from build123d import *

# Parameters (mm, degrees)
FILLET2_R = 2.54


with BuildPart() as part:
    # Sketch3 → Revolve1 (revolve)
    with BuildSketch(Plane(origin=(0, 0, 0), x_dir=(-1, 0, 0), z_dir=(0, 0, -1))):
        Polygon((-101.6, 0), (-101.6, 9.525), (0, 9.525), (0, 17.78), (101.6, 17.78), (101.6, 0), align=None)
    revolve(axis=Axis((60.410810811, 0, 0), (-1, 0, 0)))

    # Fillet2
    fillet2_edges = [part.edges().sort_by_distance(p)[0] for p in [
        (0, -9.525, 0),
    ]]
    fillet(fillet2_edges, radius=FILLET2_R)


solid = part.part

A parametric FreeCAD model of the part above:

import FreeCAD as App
import Part
import Sketcher

V = App.Vector
Q = App.Units.Quantity


def edges_at(feature, points):
    """Names of the edges that pass closest to the given points."""
    edges = feature.Shape.Edges
    near = lambda p: min(range(len(edges)), key=lambda i: edges[i].distToShape(Part.Vertex(*p))[0])
    return sorted({f"Edge{near(p) + 1}" for p in points})


def add_polygon(sketch, points):
    """Adds a closed chain of lines whose ends are joined by coincident constraints."""
    first, n = sketch.GeometryCount, len(points)
    for a, b in zip(points, points[1:] + points[:1]):
        sketch.addGeometry(Part.LineSegment(App.Vector(*a, 0), App.Vector(*b, 0)), False)
    for i in range(n):
        sketch.addConstraint(Sketcher.Constraint("Coincident", first + i, 2, first + (i + 1) % n, 1))

doc = App.newDocument("Part")
params = doc.addObject("Spreadsheet::Sheet", "Params")
for row, (alias, value) in enumerate([
    ("sketch1_width", "8 in"),
    ("sketch1_height", "0.7 in"),
    ("sketch1_height2", "0.375 in"),
    ("revolution_angle", "360 deg"),
    ("fillet_radius", "0.1 in"),
], start=1):
    params.set(f"A{row}", alias)
    params.set(f"B{row}", "=" + value)
    params.setAlias(f"B{row}", alias)

body = doc.addObject("PartDesign::Body", "Body")

# Sketch on XY plane
sketch1 = body.newObject("Sketcher::SketchObject", "Sketch")
sketch1.AttachmentSupport = (doc.getObject("XY_Plane"), [""])
sketch1.MapMode = "FlatFace"
add_polygon(sketch1, [(102, 10), (102, 0), (-102, 0), (-102, 18), (0, 18), (0, 10)])  # lines 0-5
sketch1.addConstraint(Sketcher.Constraint("Vertical", 0))
sketch1.addConstraint(Sketcher.Constraint("Horizontal", 1))
sketch1.addConstraint(Sketcher.Constraint("Vertical", 2))
sketch1.addConstraint(Sketcher.Constraint("Horizontal", 3))
sketch1.addConstraint(Sketcher.Constraint("Vertical", 4))
sketch1.addConstraint(Sketcher.Constraint("Horizontal", 5))
sketch1.addConstraint(Sketcher.Constraint("Symmetric", 0, 2, 1, 2, -1, 1))
sketch1.addConstraint(Sketcher.Constraint("PointOnObject", 3, 2, -2))
sketch1.addConstraint(Sketcher.Constraint("DistanceX", 1, 2, 1, 1, Q("8 in")))
sketch1.addConstraint(Sketcher.Constraint("DistanceY", 2, 1, 2, 2, Q("0.7 in")))
sketch1.addConstraint(Sketcher.Constraint("DistanceY", 0, 2, 0, 1, Q("0.375 in")))
sketch1.setExpression("Constraints[14]", "Params.sketch1_width")
sketch1.setExpression("Constraints[15]", "Params.sketch1_height")
sketch1.setExpression("Constraints[16]", "Params.sketch1_height2")
revolution = body.newObject("PartDesign::Revolution", "Revolution")
revolution.Profile = sketch1
revolution.ReferenceAxis = (sketch1, ["H_Axis"])
revolution.setExpression("Angle", "Params.revolution_angle")
doc.recompute()

fillet = body.newObject("PartDesign::Fillet", "Fillet")
fillet.Base = (revolution, edges_at(revolution, [(0, -9.525, 0)]))
fillet.setExpression("Radius", "Params.fillet_radius")

doc.recompute()
